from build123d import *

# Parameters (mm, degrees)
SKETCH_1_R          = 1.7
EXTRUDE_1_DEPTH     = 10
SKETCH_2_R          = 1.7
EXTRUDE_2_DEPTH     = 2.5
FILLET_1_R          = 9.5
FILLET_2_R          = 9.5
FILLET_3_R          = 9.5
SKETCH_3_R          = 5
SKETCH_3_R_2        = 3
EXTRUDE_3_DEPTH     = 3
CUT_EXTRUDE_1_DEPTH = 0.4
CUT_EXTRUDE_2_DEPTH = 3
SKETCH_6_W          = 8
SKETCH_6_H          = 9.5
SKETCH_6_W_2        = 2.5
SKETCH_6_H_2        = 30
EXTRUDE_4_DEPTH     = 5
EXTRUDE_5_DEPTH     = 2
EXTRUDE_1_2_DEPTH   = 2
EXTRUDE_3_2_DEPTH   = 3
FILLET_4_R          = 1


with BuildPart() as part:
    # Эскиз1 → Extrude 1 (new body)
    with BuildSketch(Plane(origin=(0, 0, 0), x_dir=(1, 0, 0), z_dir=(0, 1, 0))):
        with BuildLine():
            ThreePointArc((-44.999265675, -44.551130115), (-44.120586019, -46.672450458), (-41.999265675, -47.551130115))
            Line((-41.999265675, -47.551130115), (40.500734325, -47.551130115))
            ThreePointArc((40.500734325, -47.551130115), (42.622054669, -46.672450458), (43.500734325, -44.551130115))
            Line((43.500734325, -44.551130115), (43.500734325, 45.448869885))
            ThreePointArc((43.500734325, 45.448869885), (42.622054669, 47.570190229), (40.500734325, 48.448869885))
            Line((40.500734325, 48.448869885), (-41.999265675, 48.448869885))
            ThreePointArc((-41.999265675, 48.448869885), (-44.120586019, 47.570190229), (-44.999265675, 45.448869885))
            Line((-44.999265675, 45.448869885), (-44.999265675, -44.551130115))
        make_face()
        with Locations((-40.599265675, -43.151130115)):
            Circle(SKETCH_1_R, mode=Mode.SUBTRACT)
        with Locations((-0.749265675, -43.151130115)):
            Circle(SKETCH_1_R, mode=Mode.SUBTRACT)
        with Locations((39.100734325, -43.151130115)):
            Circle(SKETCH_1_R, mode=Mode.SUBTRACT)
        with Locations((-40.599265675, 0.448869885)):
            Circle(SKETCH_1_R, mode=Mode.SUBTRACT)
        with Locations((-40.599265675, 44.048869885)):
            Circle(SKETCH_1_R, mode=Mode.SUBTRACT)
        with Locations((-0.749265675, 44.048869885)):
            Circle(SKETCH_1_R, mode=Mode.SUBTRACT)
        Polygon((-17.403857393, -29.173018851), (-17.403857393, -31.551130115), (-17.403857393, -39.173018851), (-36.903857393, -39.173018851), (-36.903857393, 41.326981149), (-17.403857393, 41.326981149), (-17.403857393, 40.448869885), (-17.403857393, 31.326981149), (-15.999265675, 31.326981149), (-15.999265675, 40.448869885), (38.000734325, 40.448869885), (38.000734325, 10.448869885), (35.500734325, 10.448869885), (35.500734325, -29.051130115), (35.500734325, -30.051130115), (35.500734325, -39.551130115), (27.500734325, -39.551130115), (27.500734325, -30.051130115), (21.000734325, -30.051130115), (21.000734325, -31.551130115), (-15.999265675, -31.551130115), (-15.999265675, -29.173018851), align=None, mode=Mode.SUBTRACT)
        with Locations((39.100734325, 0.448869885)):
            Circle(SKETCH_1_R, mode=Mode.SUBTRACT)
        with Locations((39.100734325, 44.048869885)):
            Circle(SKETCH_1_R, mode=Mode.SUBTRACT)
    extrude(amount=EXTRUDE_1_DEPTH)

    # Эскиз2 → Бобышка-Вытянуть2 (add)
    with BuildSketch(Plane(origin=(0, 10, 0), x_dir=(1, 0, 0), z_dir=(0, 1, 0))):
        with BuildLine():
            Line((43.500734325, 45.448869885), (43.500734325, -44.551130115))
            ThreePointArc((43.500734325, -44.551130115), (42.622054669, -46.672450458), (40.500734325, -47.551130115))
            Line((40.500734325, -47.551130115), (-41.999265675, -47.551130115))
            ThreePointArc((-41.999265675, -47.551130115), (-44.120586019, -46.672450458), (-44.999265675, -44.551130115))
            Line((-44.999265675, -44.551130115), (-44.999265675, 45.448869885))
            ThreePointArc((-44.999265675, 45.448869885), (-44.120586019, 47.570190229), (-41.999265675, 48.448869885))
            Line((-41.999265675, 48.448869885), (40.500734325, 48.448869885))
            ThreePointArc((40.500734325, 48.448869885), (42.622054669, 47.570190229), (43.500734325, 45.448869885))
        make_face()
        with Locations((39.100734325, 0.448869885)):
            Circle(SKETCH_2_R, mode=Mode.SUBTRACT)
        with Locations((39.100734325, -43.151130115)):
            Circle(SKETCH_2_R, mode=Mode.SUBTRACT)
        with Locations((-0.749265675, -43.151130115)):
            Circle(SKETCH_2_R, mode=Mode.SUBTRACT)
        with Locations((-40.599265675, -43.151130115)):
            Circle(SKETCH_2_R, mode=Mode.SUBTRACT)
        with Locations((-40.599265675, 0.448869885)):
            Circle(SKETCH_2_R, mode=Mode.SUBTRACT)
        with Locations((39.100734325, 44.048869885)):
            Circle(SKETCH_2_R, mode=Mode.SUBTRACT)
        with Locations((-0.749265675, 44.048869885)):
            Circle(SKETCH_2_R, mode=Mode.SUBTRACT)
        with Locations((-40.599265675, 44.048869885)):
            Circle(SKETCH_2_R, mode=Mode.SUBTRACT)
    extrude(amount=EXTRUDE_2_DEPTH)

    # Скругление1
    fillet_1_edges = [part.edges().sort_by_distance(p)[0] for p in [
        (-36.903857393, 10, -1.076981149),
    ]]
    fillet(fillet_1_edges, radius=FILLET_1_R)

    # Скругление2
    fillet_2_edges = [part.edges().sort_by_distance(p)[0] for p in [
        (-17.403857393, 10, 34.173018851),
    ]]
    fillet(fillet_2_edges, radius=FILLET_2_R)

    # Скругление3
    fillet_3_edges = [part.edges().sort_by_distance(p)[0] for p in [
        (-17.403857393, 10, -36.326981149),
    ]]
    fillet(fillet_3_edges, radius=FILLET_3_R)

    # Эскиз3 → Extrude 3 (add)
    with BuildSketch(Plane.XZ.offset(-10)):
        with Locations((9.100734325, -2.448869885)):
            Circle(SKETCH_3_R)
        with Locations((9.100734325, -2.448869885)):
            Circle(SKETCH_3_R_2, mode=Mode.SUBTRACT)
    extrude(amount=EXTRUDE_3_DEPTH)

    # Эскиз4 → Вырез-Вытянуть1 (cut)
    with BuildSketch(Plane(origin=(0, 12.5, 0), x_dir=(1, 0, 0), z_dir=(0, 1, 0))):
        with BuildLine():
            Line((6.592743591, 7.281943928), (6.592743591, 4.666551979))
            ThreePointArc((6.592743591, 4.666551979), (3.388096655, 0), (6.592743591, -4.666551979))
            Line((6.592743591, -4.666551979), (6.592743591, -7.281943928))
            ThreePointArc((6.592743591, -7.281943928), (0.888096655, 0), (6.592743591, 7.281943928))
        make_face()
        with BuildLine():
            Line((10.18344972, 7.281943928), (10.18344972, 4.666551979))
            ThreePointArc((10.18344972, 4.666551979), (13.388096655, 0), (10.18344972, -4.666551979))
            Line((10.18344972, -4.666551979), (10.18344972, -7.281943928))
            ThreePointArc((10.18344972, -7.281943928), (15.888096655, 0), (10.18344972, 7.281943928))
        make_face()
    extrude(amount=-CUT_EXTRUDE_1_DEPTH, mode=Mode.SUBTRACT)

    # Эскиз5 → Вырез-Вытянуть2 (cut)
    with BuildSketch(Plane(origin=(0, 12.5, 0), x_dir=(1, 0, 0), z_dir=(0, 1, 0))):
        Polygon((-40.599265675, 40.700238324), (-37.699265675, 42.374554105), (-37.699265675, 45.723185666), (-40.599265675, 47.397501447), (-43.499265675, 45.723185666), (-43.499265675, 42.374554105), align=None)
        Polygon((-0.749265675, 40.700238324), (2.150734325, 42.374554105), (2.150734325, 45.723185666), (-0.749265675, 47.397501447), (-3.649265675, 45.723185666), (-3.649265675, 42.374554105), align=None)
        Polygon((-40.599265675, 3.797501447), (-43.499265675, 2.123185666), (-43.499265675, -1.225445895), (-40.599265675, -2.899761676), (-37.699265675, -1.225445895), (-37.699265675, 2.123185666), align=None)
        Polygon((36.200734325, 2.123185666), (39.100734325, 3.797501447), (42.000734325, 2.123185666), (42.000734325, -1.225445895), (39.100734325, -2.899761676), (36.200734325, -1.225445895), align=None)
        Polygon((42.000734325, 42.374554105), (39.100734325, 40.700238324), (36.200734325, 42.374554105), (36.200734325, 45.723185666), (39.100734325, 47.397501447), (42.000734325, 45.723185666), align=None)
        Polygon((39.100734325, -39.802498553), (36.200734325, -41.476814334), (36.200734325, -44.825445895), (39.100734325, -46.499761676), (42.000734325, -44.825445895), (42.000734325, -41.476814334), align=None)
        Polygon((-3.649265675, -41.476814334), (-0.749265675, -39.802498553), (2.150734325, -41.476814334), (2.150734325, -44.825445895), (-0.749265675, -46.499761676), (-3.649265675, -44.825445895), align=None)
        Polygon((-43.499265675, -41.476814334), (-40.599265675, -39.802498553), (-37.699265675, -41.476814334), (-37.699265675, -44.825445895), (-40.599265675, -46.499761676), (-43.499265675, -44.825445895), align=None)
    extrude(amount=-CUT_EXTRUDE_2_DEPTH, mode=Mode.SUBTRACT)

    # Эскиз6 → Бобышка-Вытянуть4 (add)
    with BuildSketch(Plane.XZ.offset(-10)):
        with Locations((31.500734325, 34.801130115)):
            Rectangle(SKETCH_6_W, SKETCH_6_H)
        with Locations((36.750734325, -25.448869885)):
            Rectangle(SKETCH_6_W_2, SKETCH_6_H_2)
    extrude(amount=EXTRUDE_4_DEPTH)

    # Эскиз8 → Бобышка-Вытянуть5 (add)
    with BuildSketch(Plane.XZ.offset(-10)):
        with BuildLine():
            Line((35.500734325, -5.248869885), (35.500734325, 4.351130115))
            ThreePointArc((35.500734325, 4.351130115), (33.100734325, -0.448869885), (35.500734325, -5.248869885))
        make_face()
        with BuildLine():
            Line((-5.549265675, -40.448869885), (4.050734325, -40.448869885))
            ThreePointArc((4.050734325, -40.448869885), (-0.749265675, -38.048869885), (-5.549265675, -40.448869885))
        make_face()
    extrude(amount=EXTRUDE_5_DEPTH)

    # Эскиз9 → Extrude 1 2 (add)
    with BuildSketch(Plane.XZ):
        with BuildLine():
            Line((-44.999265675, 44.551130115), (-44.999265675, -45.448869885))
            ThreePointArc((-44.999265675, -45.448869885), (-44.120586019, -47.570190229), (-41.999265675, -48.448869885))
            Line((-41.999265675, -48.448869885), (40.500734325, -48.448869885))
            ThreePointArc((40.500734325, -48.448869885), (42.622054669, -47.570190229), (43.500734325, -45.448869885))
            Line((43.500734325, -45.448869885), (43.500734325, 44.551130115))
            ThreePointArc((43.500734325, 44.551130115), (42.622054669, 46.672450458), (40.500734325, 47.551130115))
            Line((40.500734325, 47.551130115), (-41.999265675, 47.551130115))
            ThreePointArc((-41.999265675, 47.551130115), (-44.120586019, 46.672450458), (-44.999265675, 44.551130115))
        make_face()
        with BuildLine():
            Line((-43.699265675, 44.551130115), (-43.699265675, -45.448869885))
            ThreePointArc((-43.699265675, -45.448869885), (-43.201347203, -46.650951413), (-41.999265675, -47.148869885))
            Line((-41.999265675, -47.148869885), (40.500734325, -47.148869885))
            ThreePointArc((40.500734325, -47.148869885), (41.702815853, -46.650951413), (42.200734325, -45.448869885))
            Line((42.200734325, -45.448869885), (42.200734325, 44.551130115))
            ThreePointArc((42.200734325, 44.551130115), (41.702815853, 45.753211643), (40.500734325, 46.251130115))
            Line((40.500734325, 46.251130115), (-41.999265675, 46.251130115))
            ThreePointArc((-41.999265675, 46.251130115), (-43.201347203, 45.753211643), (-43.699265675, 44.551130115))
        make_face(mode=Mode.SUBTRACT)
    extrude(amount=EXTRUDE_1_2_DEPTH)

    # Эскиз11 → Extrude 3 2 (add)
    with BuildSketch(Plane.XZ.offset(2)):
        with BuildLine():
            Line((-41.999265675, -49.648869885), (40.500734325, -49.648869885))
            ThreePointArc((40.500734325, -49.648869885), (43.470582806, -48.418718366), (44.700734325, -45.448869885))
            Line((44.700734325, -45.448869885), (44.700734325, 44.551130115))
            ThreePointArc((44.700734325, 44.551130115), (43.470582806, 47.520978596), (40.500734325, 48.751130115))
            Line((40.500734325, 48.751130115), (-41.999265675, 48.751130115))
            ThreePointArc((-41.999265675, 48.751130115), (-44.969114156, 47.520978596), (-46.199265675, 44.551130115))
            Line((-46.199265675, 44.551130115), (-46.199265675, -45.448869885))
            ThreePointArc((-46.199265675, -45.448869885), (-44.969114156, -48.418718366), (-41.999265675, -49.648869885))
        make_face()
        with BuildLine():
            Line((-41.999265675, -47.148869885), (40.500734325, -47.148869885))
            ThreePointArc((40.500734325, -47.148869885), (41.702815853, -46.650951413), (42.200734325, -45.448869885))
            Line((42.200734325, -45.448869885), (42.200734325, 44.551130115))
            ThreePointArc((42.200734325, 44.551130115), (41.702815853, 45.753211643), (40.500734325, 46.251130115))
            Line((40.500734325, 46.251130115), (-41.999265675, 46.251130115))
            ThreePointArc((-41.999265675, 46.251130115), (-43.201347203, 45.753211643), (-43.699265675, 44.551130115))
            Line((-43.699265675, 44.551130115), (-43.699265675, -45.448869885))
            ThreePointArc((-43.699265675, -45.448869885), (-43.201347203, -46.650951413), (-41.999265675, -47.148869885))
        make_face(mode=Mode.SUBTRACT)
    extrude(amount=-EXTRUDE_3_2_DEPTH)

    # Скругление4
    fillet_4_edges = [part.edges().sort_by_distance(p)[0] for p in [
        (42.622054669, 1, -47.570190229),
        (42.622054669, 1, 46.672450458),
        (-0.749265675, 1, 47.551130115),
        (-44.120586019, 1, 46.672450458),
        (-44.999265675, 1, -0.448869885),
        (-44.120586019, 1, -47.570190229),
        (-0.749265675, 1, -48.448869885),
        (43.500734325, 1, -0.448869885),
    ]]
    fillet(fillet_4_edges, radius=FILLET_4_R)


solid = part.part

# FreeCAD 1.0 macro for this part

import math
import FreeCAD as App
import Part
import Sketcher
Q = App.Units.Quantity


def edges_at(feature, points):
    """Names of the edges that pass closest to the given points."""
    edges = feature.Shape.Edges
    near = lambda p: min(range(len(edges)), key=lambda i: edges[i].distToShape(Part.Vertex(*p))[0])
    return sorted({f"Edge{near(p) + 1}" for p in points})


def add_polygon(sketch, points):
    """Adds a closed chain of lines whose ends are joined by coincident constraints."""
    first, n = sketch.GeometryCount, len(points)
    for a, b in zip(points, points[1:] + points[:1]):
        sketch.addGeometry(Part.LineSegment(App.Vector(*a, 0), App.Vector(*b, 0)), False)
    for i in range(n):
        sketch.addConstraint(Sketcher.Constraint("Coincident", first + i, 2, first + (i + 1) % n, 1))

doc = App.newDocument("Part")
body = doc.addObject("PartDesign::Body", "Body")

# Sketch on XZ plane
sketch1 = body.newObject("Sketcher::SketchObject", "Sketch")
sketch1.AttachmentSupport = (doc.getObject("XZ_Plane"), [""])
sketch1.MapMode = "FlatFace"
sketch1.addGeometry(Part.ArcOfCircle(Part.Circle(App.Vector(-42, 44.6, 0), App.Vector(0, 0, 1), 3), math.radians(90), math.radians(180)), False)  # 0
sketch1.addGeometry(Part.LineSegment(App.Vector(-42, 47.6, 0), App.Vector(40.5, 47.6, 0)), False)  # 1
sketch1.addGeometry(Part.ArcOfCircle(Part.Circle(App.Vector(40.5, 44.6, 0), App.Vector(0, 0, 1), 3), math.radians(0), math.radians(90)), False)  # 2
sketch1.addGeometry(Part.LineSegment(App.Vector(43.5, 44.6, 0), App.Vector(43.5, -45.4, 0)), False)  # 3
sketch1.addGeometry(Part.ArcOfCircle(Part.Circle(App.Vector(40.5, -45.4, 0), App.Vector(0, 0, 1), 3), math.radians(-90), math.radians(0)), False)  # 4
sketch1.addGeometry(Part.LineSegment(App.Vector(40.5, -48.4, 0), App.Vector(-42, -48.4, 0)), False)  # 5
sketch1.addGeometry(Part.ArcOfCircle(Part.Circle(App.Vector(-42, -45.4, 0), App.Vector(0, 0, 1), 3), math.radians(180), math.radians(270)), False)  # 6
sketch1.addGeometry(Part.LineSegment(App.Vector(-45, -45.4, 0), App.Vector(-45, 44.6, 0)), False)  # 7
sketch1.addGeometry(Part.Circle(App.Vector(-40.6, 43.2, 0), App.Vector(0, 0, 1), 1.7), False)  # 8
sketch1.addGeometry(Part.Circle(App.Vector(-40.6, -0.4, 0), App.Vector(0, 0, 1), 1.7), False)  # 9
sketch1.addGeometry(Part.Circle(App.Vector(-0.7, 43.2, 0), App.Vector(0, 0, 1), 1.7), False)  # 10
sketch1.addGeometry(Part.Circle(App.Vector(39.1, 43.2, 0), App.Vector(0, 0, 1), 1.7), False)  # 11
sketch1.addGeometry(Part.Circle(App.Vector(39.1, -0.4, 0), App.Vector(0, 0, 1), 1.7), False)  # 12
sketch1.addGeometry(Part.Circle(App.Vector(-40.6, -44, 0), App.Vector(0, 0, 1), 1.7), False)  # 13
add_polygon(sketch1, [(-16, 29.2), (-17.4, 29.2), (-17.4, 39.2), (-36.9, 39.2), (-36.9, -41.3), (-17.4, -41.3), (-17.4, -31.3), (-16, -31.3), (-16, -40.4), (38, -40.4), (38, -10.4), (35.5, -10.4), (35.5, 39.6), (27.5, 39.6), (27.5, 30.1), (21, 30.1), (21, 31.6), (-16, 31.6)])  # lines 14-31
sketch1.addGeometry(Part.Circle(App.Vector(-0.7, -44, 0), App.Vector(0, 0, 1), 1.7), False)  # 32
sketch1.addGeometry(Part.Circle(App.Vector(39.1, -44, 0), App.Vector(0, 0, 1), 1.7), False)  # 33
sketch1.addConstraint([
    Sketcher.Constraint("Tangent", 0, 1, 1, 1),
    Sketcher.Constraint("Tangent", 1, 2, 2, 2),
    Sketcher.Constraint("Tangent", 2, 1, 3, 1),
    Sketcher.Constraint("Tangent", 3, 2, 4, 2),
    Sketcher.Constraint("Tangent", 4, 1, 5, 1),
    Sketcher.Constraint("Tangent", 5, 2, 6, 2),
    Sketcher.Constraint("Tangent", 6, 1, 7, 1),
    Sketcher.Constraint("Tangent", 7, 2, 0, 2),
    Sketcher.Constraint("Horizontal", 1),
    Sketcher.Constraint("Vertical", 3),
    Sketcher.Constraint("Horizontal", 5),
    Sketcher.Constraint("Vertical", 7),
    Sketcher.Constraint("Horizontal", 14),
    Sketcher.Constraint("Vertical", 15),
    Sketcher.Constraint("Horizontal", 16),
    Sketcher.Constraint("Vertical", 17),
    Sketcher.Constraint("Horizontal", 18),
    Sketcher.Constraint("Vertical", 19),
    Sketcher.Constraint("Horizontal", 20),
    Sketcher.Constraint("Vertical", 21),
    Sketcher.Constraint("Horizontal", 22),
    Sketcher.Constraint("Vertical", 23),
    Sketcher.Constraint("Horizontal", 24),
    Sketcher.Constraint("Vertical", 25),
    Sketcher.Constraint("Horizontal", 26),
    Sketcher.Constraint("Vertical", 27),
    Sketcher.Constraint("Horizontal", 28),
    Sketcher.Constraint("Vertical", 29),
    Sketcher.Constraint("Horizontal", 30),
    Sketcher.Constraint("Vertical", 31),
    Sketcher.Constraint("Equal", 0, 2),
    Sketcher.Constraint("Equal", 2, 4),
    Sketcher.Constraint("Equal", 4, 6),
    Sketcher.Constraint("Equal", 8, 9),
    Sketcher.Constraint("Equal", 9, 10),
    Sketcher.Constraint("Equal", 10, 11),
    Sketcher.Constraint("Equal", 11, 12),
    Sketcher.Constraint("Equal", 12, 13),
    Sketcher.Constraint("Equal", 13, 32),
    Sketcher.Constraint("Equal", 32, 33),
    Sketcher.Constraint("Horizontal", 8, 3, 10, 3),
    Sketcher.Constraint("Horizontal", 10, 3, 11, 3),
    Sketcher.Constraint("Horizontal", 9, 3, 12, 3),
    Sketcher.Constraint("Horizontal", 13, 3, 32, 3),
    Sketcher.Constraint("Horizontal", 32, 3, 33, 3),
    Sketcher.Constraint("Vertical", 8, 3, 9, 3),
    Sketcher.Constraint("Vertical", 11, 3, 12, 3),
    Sketcher.Constraint("Vertical", 9, 3, 13, 3),
    Sketcher.Constraint("Vertical", 10, 3, 32, 3),
    Sketcher.Constraint("Vertical", 12, 3, 33, 3),
    Sketcher.Constraint("Vertical", 15, 2, 18, 2),
    Sketcher.Constraint("Vertical", 21, 2, 30, 2),
    Sketcher.Constraint("Equal", 15, 19),
    Sketcher.Constraint("Radius", 0, 3.0),
    Sketcher.Constraint("Diameter", 8, 3.4),
    Sketcher.Constraint("DistanceX", 22, 1, 22, 2, 54.0),
    Sketcher.Constraint("DistanceX", 26, 2, 26, 1, 8.0),
    Sketcher.Constraint("DistanceX", 30, 2, 30, 1, 37.0),
    Sketcher.Constraint("DistanceY", 3, 2, 3, 1, 90.0),
    Sketcher.Constraint("DistanceY", 15, 1, 15, 2, 10.0),
    Sketcher.Constraint("DistanceY", 23, 1, 23, 2, 30.0),
    Sketcher.Constraint("DistanceY", 25, 1, 25, 2, 50.0),
    Sketcher.Constraint("DistanceX", 1, 1, 1, 2, 82.5),
    Sketcher.Constraint("DistanceX", 16, 2, 16, 1, 19.5),
    Sketcher.Constraint("DistanceX", 24, 2, 24, 1, 2.5),
    Sketcher.Constraint("DistanceY", 17, 2, 17, 1, 80.5),
    Sketcher.Constraint("DistanceY", 27, 2, 27, 1, 9.5),
    Sketcher.Constraint("DistanceY", 29, 1, 29, 2, 1.5),
    Sketcher.Constraint("DistanceY", 9, 3, 0, 3, 45.0),
    Sketcher.Constraint("DistanceY", 4, 3, 22, 2, 5.0),
    Sketcher.Constraint("DistanceX", 24, 2, 4, 3, 5.0),
    Sketcher.Constraint("DistanceX", 0, 3, 8, 3, 1.4),
    Sketcher.Constraint("DistanceY", 8, 3, 0, 3, 1.4),
    Sketcher.Constraint("DistanceX", 11, 3, 2, 3, 1.4),
    Sketcher.Constraint("DistanceY", 6, 3, 13, 3, 1.4),
    Sketcher.Constraint("DistanceX", 8, 3, 10, 3, 39.85),
    Sketcher.Constraint("DistanceX", 14, 2, 14, 1, 1.404592),
    Sketcher.Constraint("DistanceY", 21, 2, 21, 1, 9.121889),
    Sketcher.Constraint("DistanceY", -1, 1, 0, 3, 44.55113),
    Sketcher.Constraint("DistanceX", 0, 3, -1, 1, 41.999266),
])
pad1 = body.newObject("PartDesign::Pad", "Pad")
pad1.Profile = sketch1
pad1.Length = 10
pad1.Reversed = True

# Sketch on XZ plane
sketch2 = body.newObject("Sketcher::SketchObject", "Sketch001")
sketch2.AttachmentSupport = (doc.getObject("XZ_Plane"), [""])
sketch2.MapMode = "FlatFace"
sketch2.AttachmentOffset = App.Placement(App.Vector(0, 0, -10), App.Rotation())
sketch2.addGeometry([
    Part.LineSegment(App.Vector(43.5, 44.6, 0), App.Vector(43.5, -45.4, 0)),  # 0
    Part.ArcOfCircle(Part.Circle(App.Vector(40.5, -45.4, 0), App.Vector(0, 0, 1), 3), math.radians(-90), math.radians(0)),  # 1
    Part.LineSegment(App.Vector(40.5, -48.4, 0), App.Vector(-42, -48.4, 0)),  # 2
    Part.ArcOfCircle(Part.Circle(App.Vector(-42, -45.4, 0), App.Vector(0, 0, 1), 3), math.radians(180), math.radians(270)),  # 3
    Part.LineSegment(App.Vector(-45, -45.4, 0), App.Vector(-45, 44.6, 0)),  # 4
    Part.ArcOfCircle(Part.Circle(App.Vector(-42, 44.6, 0), App.Vector(0, 0, 1), 3), math.radians(90), math.radians(180)),  # 5
    Part.LineSegment(App.Vector(-42, 47.6, 0), App.Vector(40.5, 47.6, 0)),  # 6
    Part.ArcOfCircle(Part.Circle(App.Vector(40.5, 44.6, 0), App.Vector(0, 0, 1), 3), math.radians(0), math.radians(90)),  # 7
    Part.Circle(App.Vector(39.1, 43.2, 0), App.Vector(0, 0, 1), 1.7),  # 8
    Part.Circle(App.Vector(-0.7, 43.2, 0), App.Vector(0, 0, 1), 1.7),  # 9
    Part.Circle(App.Vector(-40.6, 43.2, 0), App.Vector(0, 0, 1), 1.7),  # 10
    Part.Circle(App.Vector(39.1, -0.4, 0), App.Vector(0, 0, 1), 1.7),  # 11
    Part.Circle(App.Vector(39.1, -44, 0), App.Vector(0, 0, 1), 1.7),  # 12
    Part.Circle(App.Vector(-40.6, -0.4, 0), App.Vector(0, 0, 1), 1.7),  # 13
    Part.Circle(App.Vector(-0.7, -44, 0), App.Vector(0, 0, 1), 1.7),  # 14
    Part.Circle(App.Vector(-40.6, -44, 0), App.Vector(0, 0, 1), 1.7),  # 15
], False)
sketch2.addConstraint([
    Sketcher.Constraint("Tangent", 0, 2, 1, 2),
    Sketcher.Constraint("Tangent", 1, 1, 2, 1),
    Sketcher.Constraint("Tangent", 2, 2, 3, 2),
    Sketcher.Constraint("Tangent", 3, 1, 4, 1),
    Sketcher.Constraint("Tangent", 4, 2, 5, 2),
    Sketcher.Constraint("Tangent", 5, 1, 6, 1),
    Sketcher.Constraint("Tangent", 6, 2, 7, 2),
    Sketcher.Constraint("Tangent", 7, 1, 0, 1),
    Sketcher.Constraint("Vertical", 0),
    Sketcher.Constraint("Horizontal", 2),
    Sketcher.Constraint("Vertical", 4),
    Sketcher.Constraint("Horizontal", 6),
    Sketcher.Constraint("Equal", 1, 3),
    Sketcher.Constraint("Equal", 3, 5),
    Sketcher.Constraint("Equal", 5, 7),
    Sketcher.Constraint("Equal", 8, 9),
    Sketcher.Constraint("Equal", 9, 10),
    Sketcher.Constraint("Equal", 10, 11),
    Sketcher.Constraint("Equal", 11, 12),
    Sketcher.Constraint("Equal", 12, 13),
    Sketcher.Constraint("Equal", 13, 14),
    Sketcher.Constraint("Equal", 14, 15),
    Sketcher.Constraint("Horizontal", 8, 3, 9, 3),
    Sketcher.Constraint("Horizontal", 9, 3, 10, 3),
    Sketcher.Constraint("Horizontal", 11, 3, 13, 3),
    Sketcher.Constraint("Horizontal", 12, 3, 14, 3),
    Sketcher.Constraint("Horizontal", 14, 3, 15, 3),
    Sketcher.Constraint("Vertical", 8, 3, 11, 3),
    Sketcher.Constraint("Vertical", 11, 3, 12, 3),
    Sketcher.Constraint("Vertical", 10, 3, 13, 3),
    Sketcher.Constraint("Vertical", 9, 3, 14, 3),
    Sketcher.Constraint("Vertical", 13, 3, 15, 3),
    Sketcher.Constraint("Radius", 1, 3.0),
    Sketcher.Constraint("Diameter", 8, 3.4),
    Sketcher.Constraint("DistanceY", 0, 2, 0, 1, 90.0),
    Sketcher.Constraint("DistanceX", 2, 2, 2, 1, 82.5),
    Sketcher.Constraint("DistanceY", 11, 3, 7, 3, 45.0),
    Sketcher.Constraint("DistanceX", 8, 3, 7, 3, 1.4),
    Sketcher.Constraint("DistanceY", 8, 3, 7, 3, 1.4),
    Sketcher.Constraint("DistanceX", 5, 3, 10, 3, 1.4),
    Sketcher.Constraint("DistanceY", 1, 3, 12, 3, 1.4),
    Sketcher.Constraint("DistanceX", 9, 3, 8, 3, 39.85),
    Sketcher.Constraint("DistanceY", 1, 3, -1, 1, 45.44887),
    Sketcher.Constraint("DistanceX", -1, 1, 1, 3, 40.500734),
])
pad2 = body.newObject("PartDesign::Pad", "Pad001")
pad2.Profile = sketch2
pad2.Length = 2.5
pad2.Reversed = True
doc.recompute()

fillet = body.newObject("PartDesign::Fillet", "Fillet")
fillet.Base = (pad2, edges_at(pad2, [(-36.904, 10, -1.077)]))
fillet.Radius = 9.5
doc.recompute()

fillet2 = body.newObject("PartDesign::Fillet", "Fillet001")
fillet2.Base = (fillet, edges_at(fillet, [(-17.404, 10, 34.173)]))
fillet2.Radius = 9.5
doc.recompute()

fillet3 = body.newObject("PartDesign::Fillet", "Fillet002")
fillet3.Base = (fillet2, edges_at(fillet2, [(-17.404, 10, -36.327)]))
fillet3.Radius = 9.5

# Sketch on XZ plane
sketch3 = body.newObject("Sketcher::SketchObject", "Sketch002")
sketch3.AttachmentSupport = (doc.getObject("XZ_Plane"), [""])
sketch3.MapMode = "FlatFace"
sketch3.AttachmentOffset = App.Placement(App.Vector(0, 0, -10), App.Rotation())
sketch3.addGeometry([
    Part.Circle(App.Vector(9.1, -2.4, 0), App.Vector(0, 0, 1), 5),
    Part.Circle(App.Vector(9.1, -2.4, 0), App.Vector(0, 0, 1), 3),
], False)
sketch3.addConstraint([
    Sketcher.Constraint("Coincident", 1, 3, 0, 3),
    Sketcher.Constraint("Diameter", 0, 10.0),
    Sketcher.Constraint("Diameter", 1, 6.0),
    Sketcher.Constraint("DistanceY", 0, 3, -1, 1, 2.44887),
    Sketcher.Constraint("DistanceX", -1, 1, 0, 3, 9.100734),
])
pad3 = body.newObject("PartDesign::Pad", "Pad002")
pad3.Profile = sketch3
pad3.Length = 3

# Sketch on XZ plane
sketch4 = body.newObject("Sketcher::SketchObject", "Sketch003")
sketch4.AttachmentSupport = (doc.getObject("XZ_Plane"), [""])
sketch4.MapMode = "FlatFace"
sketch4.AttachmentOffset = App.Placement(App.Vector(0, 0, -12.5), App.Rotation())
sketch4.addGeometry([
    Part.LineSegment(App.Vector(6.6, -4.7, 0), App.Vector(6.6, -7.3, 0)),  # 0
    Part.ArcOfCircle(Part.Circle(App.Vector(8.4, 0, 0), App.Vector(0, 0, 1), 7.5), math.radians(104), math.radians(256)),  # 1
    Part.LineSegment(App.Vector(6.6, 7.3, 0), App.Vector(6.6, 4.7, 0)),  # 2
    Part.ArcOfCircle(Part.Circle(App.Vector(8.4, 0, 0), App.Vector(0, 0, 1), 5), math.radians(111), math.radians(249)),  # 3
    Part.LineSegment(App.Vector(10.2, -7.3, 0), App.Vector(10.2, -4.7, 0)),  # 4
    Part.ArcOfCircle(Part.Circle(App.Vector(8.4, 0, 0), App.Vector(0, 0, 1), 5), math.radians(-69), math.radians(69)),  # 5
    Part.LineSegment(App.Vector(10.2, 4.7, 0), App.Vector(10.2, 7.3, 0)),  # 6
    Part.ArcOfCircle(Part.Circle(App.Vector(8.4, 0, 0), App.Vector(0, 0, 1), 7.5), math.radians(-76), math.radians(76)),  # 7
], False)
sketch4.addConstraint([
    Sketcher.Constraint("Coincident", 0, 2, 1, 2),
    Sketcher.Constraint("Coincident", 1, 1, 2, 1),
    Sketcher.Constraint("Coincident", 2, 2, 3, 1),
    Sketcher.Constraint("Coincident", 3, 2, 0, 1),
    Sketcher.Constraint("Coincident", 4, 2, 5, 1),
    Sketcher.Constraint("Coincident", 5, 2, 6, 1),
    Sketcher.Constraint("Coincident", 6, 2, 7, 2),
    Sketcher.Constraint("Coincident", 7, 1, 4, 1),
    Sketcher.Constraint("Vertical", 0),
    Sketcher.Constraint("Vertical", 2),
    Sketcher.Constraint("Vertical", 4),
    Sketcher.Constraint("Vertical", 6),
    Sketcher.Constraint("Coincident", 3, 3, 1, 3),
    Sketcher.Constraint("Coincident", 5, 3, 1, 3),
    Sketcher.Constraint("Coincident", 7, 3, 1, 3),
    Sketcher.Constraint("Equal", 3, 5),
    Sketcher.Constraint("Equal", 1, 7),
    Sketcher.Constraint("Symmetric", 0, 2, 1, 1, -1),
    Sketcher.Constraint("Horizontal", 3, 2, 4, 2),
    Sketcher.Constraint("Horizontal", 2, 2, 5, 2),
    Sketcher.Constraint("Radius", 3, 5.0),
    Sketcher.Constraint("Radius", 1, 7.5),
    Sketcher.Constraint("DistanceY", 0, 2, 0, 1, 2.615392),
    Sketcher.Constraint("DistanceX", -1, 1, 4, 2, 10.18345),
])
pocket1 = body.newObject("PartDesign::Pocket", "Pocket")
pocket1.Profile = sketch4
pocket1.Length = 0.4
pocket1.Reversed = True

# Sketch on XZ plane
sketch5 = body.newObject("Sketcher::SketchObject", "Sketch004")
sketch5.AttachmentSupport = (doc.getObject("XZ_Plane"), [""])
sketch5.MapMode = "FlatFace"
sketch5.AttachmentOffset = App.Placement(App.Vector(0, 0, -12.5), App.Rotation())
add_polygon(sketch5, [(-40.6, -40.7), (-37.7, -42.4), (-37.7, -45.7), (-40.6, -47.4), (-43.5, -45.7), (-43.5, -42.4)])  # lines 0-5
add_polygon(sketch5, [(-0.7, -40.7), (2.2, -42.4), (2.2, -45.7), (-0.7, -47.4), (-3.6, -45.7), (-3.6, -42.4)])  # lines 6-11
add_polygon(sketch5, [(-40.6, -3.8), (-43.5, -2.1), (-43.5, 1.2), (-40.6, 2.9), (-37.7, 1.2), (-37.7, -2.1)])  # lines 12-17
add_polygon(sketch5, [(39.1, -3.8), (36.2, -2.1), (36.2, 1.2), (39.1, 2.9), (42, 1.2), (42, -2.1)])  # lines 18-23
add_polygon(sketch5, [(39.1, -40.7), (42, -42.4), (42, -45.7), (39.1, -47.4), (36.2, -45.7), (36.2, -42.4)])  # lines 24-29
add_polygon(sketch5, [(39.1, 39.8), (36.2, 41.5), (36.2, 44.8), (39.1, 46.5), (42, 44.8), (42, 41.5)])  # lines 30-35
add_polygon(sketch5, [(-0.7, 39.8), (-3.6, 41.5), (-3.6, 44.8), (-0.7, 46.5), (2.2, 44.8), (2.2, 41.5)])  # lines 36-41
add_polygon(sketch5, [(-40.6, 39.8), (-43.5, 41.5), (-43.5, 44.8), (-40.6, 46.5), (-37.7, 44.8), (-37.7, 41.5)])  # lines 42-47
sketch5.addConstraint([
    Sketcher.Constraint("Vertical", 1),
    Sketcher.Constraint("Vertical", 4),
    Sketcher.Constraint("Vertical", 7),
    Sketcher.Constraint("Vertical", 10),
    Sketcher.Constraint("Vertical", 13),
    Sketcher.Constraint("Vertical", 16),
    Sketcher.Constraint("Vertical", 19),
    Sketcher.Constraint("Vertical", 22),
    Sketcher.Constraint("Vertical", 25),
    Sketcher.Constraint("Vertical", 28),
    Sketcher.Constraint("Vertical", 31),
    Sketcher.Constraint("Vertical", 34),
    Sketcher.Constraint("Vertical", 37),
    Sketcher.Constraint("Vertical", 40),
    Sketcher.Constraint("Vertical", 43),
    Sketcher.Constraint("Vertical", 46),
    Sketcher.Constraint("Parallel", 0, 3),
    Sketcher.Constraint("Parallel", 2, 5),
    Sketcher.Constraint("Parallel", 3, 6),
    Sketcher.Constraint("Parallel", 5, 8),
    Sketcher.Constraint("Parallel", 6, 9),
    Sketcher.Constraint("Parallel", 8, 11),
    Sketcher.Constraint("Parallel", 9, 12),
    Sketcher.Constraint("Parallel", 11, 14),
    Sketcher.Constraint("Parallel", 12, 15),
    Sketcher.Constraint("Parallel", 14, 17),
    Sketcher.Constraint("Parallel", 15, 18),
    Sketcher.Constraint("Parallel", 17, 20),
    Sketcher.Constraint("Parallel", 18, 21),
    Sketcher.Constraint("Parallel", 20, 23),
    Sketcher.Constraint("Parallel", 21, 24),
    Sketcher.Constraint("Parallel", 23, 26),
    Sketcher.Constraint("Parallel", 24, 27),
    Sketcher.Constraint("Parallel", 26, 29),
    Sketcher.Constraint("Parallel", 27, 30),
    Sketcher.Constraint("Parallel", 29, 32),
    Sketcher.Constraint("Parallel", 30, 33),
    Sketcher.Constraint("Parallel", 32, 35),
    Sketcher.Constraint("Parallel", 33, 36),
    Sketcher.Constraint("Parallel", 35, 38),
    Sketcher.Constraint("Parallel", 36, 39),
    Sketcher.Constraint("Parallel", 38, 41),
    Sketcher.Constraint("Parallel", 39, 42),
    Sketcher.Constraint("Parallel", 41, 44),
    Sketcher.Constraint("Parallel", 42, 45),
    Sketcher.Constraint("Parallel", 44, 47),
    Sketcher.Constraint("Horizontal", 1, 2, 3, 2),
    Sketcher.Constraint("Horizontal", 0, 2, 4, 2),
    Sketcher.Constraint("Horizontal", 4, 2, 6, 2),
    Sketcher.Constraint("Horizontal", 3, 2, 7, 2),
    Sketcher.Constraint("Horizontal", 2, 2, 8, 2),
    Sketcher.Constraint("Horizontal", 7, 2, 9, 2),
    Sketcher.Constraint("Horizontal", 6, 2, 10, 2),
    Sketcher.Constraint("Horizontal", 13, 2, 15, 2),
    Sketcher.Constraint("Horizontal", 12, 2, 16, 2),
    Sketcher.Constraint("Horizontal", 16, 2, 18, 2),
    Sketcher.Constraint("Horizontal", 15, 2, 19, 2),
    Sketcher.Constraint("Horizontal", 14, 2, 20, 2),
    Sketcher.Constraint("Horizontal", 19, 2, 21, 2),
    Sketcher.Constraint("Horizontal", 18, 2, 22, 2),
    Sketcher.Constraint("Horizontal", 10, 2, 24, 2),
    Sketcher.Constraint("Horizontal", 9, 2, 25, 2),
    Sketcher.Constraint("Horizontal", 8, 2, 26, 2),
    Sketcher.Constraint("Horizontal", 25, 2, 27, 2),
    Sketcher.Constraint("Horizontal", 24, 2, 28, 2),
    Sketcher.Constraint("Horizontal", 31, 2, 33, 2),
    Sketcher.Constraint("Horizontal", 30, 2, 34, 2),
    Sketcher.Constraint("Horizontal", 34, 2, 36, 2),
    Sketcher.Constraint("Horizontal", 33, 2, 37, 2),
    Sketcher.Constraint("Horizontal", 32, 2, 38, 2),
    Sketcher.Constraint("Horizontal", 37, 2, 39, 2),
    Sketcher.Constraint("Horizontal", 36, 2, 40, 2),
    Sketcher.Constraint("Horizontal", 40, 2, 42, 2),
    Sketcher.Constraint("Horizontal", 39, 2, 43, 2),
    Sketcher.Constraint("Horizontal", 38, 2, 44, 2),
    Sketcher.Constraint("Horizontal", 43, 2, 45, 2),
    Sketcher.Constraint("Horizontal", 42, 2, 46, 2),
    Sketcher.Constraint("Vertical", 2, 2, 5, 2),
    Sketcher.Constraint("Vertical", 4, 2, 12, 2),
    Sketcher.Constraint("Vertical", 5, 2, 14, 2),
    Sketcher.Constraint("Vertical", 22, 2, 24, 2),
    Sketcher.Constraint("Vertical", 28, 2, 30, 2),
    Sketcher.Constraint("Vertical", 29, 2, 32, 2),
    Sketcher.Constraint("Vertical", 10, 2, 36, 2),
    Sketcher.Constraint("Vertical", 13, 2, 42, 2),
    Sketcher.Constraint("Equal", 10, 13),
    Sketcher.Constraint("Equal", 28, 31),
    Sketcher.Constraint("Angle", 0, Q("-30 deg")),
    Sketcher.Constraint("DistanceX", 2, 2, 1, 2, 2.9),
    Sketcher.Constraint("DistanceY", 3, 2, 12, 2, 43.6),
    Sketcher.Constraint("DistanceY", 18, 2, 30, 2, 43.6),
    Sketcher.Constraint("DistanceX", 0, 2, 6, 2, 39.85),
    Sketcher.Constraint("DistanceX", 6, 2, 18, 2, 34.05),
    Sketcher.Constraint("DistanceY", 1, 2, 1, 1, 3.348632),
    Sketcher.Constraint("DistanceY", 2, 2, -1, 1, 47.397501),
    Sketcher.Constraint("DistanceX", 0, 2, -1, 1, 37.699266),
])
pocket2 = body.newObject("PartDesign::Pocket", "Pocket001")
pocket2.Profile = sketch5
pocket2.Length = 3
pocket2.Reversed = True

# Sketch on XZ plane
sketch6 = body.newObject("Sketcher::SketchObject", "Sketch005")
sketch6.AttachmentSupport = (doc.getObject("XZ_Plane"), [""])
sketch6.MapMode = "FlatFace"
sketch6.AttachmentOffset = App.Placement(App.Vector(0, 0, -10), App.Rotation())
add_polygon(sketch6, [(27.5, 39.6), (27.5, 30.1), (35.5, 30.1), (35.5, 39.6)])  # lines 0-3
add_polygon(sketch6, [(35.5, -10.4), (35.5, -40.4), (38, -40.4), (38, -10.4)])  # lines 4-7
sketch6.addConstraint([
    Sketcher.Constraint("Vertical", 0),
    Sketcher.Constraint("Horizontal", 1),
    Sketcher.Constraint("Vertical", 2),
    Sketcher.Constraint("Horizontal", 3),
    Sketcher.Constraint("Vertical", 4),
    Sketcher.Constraint("Horizontal", 5),
    Sketcher.Constraint("Vertical", 6),
    Sketcher.Constraint("Horizontal", 7),
    Sketcher.Constraint("Vertical", 2, 2, 4, 2),
    Sketcher.Constraint("DistanceX", 1, 1, 1, 2, 8.0),
    Sketcher.Constraint("DistanceY", 4, 2, 4, 1, 30.0),
    Sketcher.Constraint("DistanceX", 5, 1, 5, 2, 2.5),
    Sketcher.Constraint("DistanceY", 0, 2, 0, 1, 9.5),
    Sketcher.Constraint("DistanceY", 4, 2, 2, 2, 80.0),
    Sketcher.Constraint("DistanceY", -1, 1, 0, 2, 30.05113),
    Sketcher.Constraint("DistanceX", -1, 1, 0, 2, 27.500734),
])
pad4 = body.newObject("PartDesign::Pad", "Pad003")
pad4.Profile = sketch6
pad4.Length = 5

# Sketch on XZ plane
sketch7 = body.newObject("Sketcher::SketchObject", "Sketch006")
sketch7.AttachmentSupport = (doc.getObject("XZ_Plane"), [""])
sketch7.MapMode = "FlatFace"
sketch7.AttachmentOffset = App.Placement(App.Vector(0, 0, -10), App.Rotation())
sketch7.addGeometry([
    Part.LineSegment(App.Vector(36, -5, 0), App.Vector(36, 4, 0)),
    Part.ArcOfCircle(Part.Circle(App.Vector(39, 0, 0), App.Vector(0, 0, 1), 6), math.radians(127), math.radians(233)),
    Part.LineSegment(App.Vector(-6, -40, 0), App.Vector(4, -40, 0)),
    Part.ArcOfCircle(Part.Circle(App.Vector(-1, -44, 0), App.Vector(0, 0, 1), 6), math.radians(37), math.radians(143)),
], False)
sketch7.addConstraint([
    Sketcher.Constraint("Coincident", 0, 1, 1, 2),
    Sketcher.Constraint("Coincident", 1, 1, 0, 2),
    Sketcher.Constraint("Coincident", 2, 1, 3, 2),
    Sketcher.Constraint("Coincident", 3, 1, 2, 2),
    Sketcher.Constraint("Vertical", 0),
    Sketcher.Constraint("Horizontal", 2),
    Sketcher.Constraint("Equal", 1, 3),
    Sketcher.Constraint("Equal", 2, 0),
    Sketcher.Constraint("Radius", 1, 6.0),
    Sketcher.Constraint("DistanceX", 2, 1, 2, 2, 9.6),
    Sketcher.Constraint("DistanceY", 2, 1, 1, 3, 40.0),
    Sketcher.Constraint("DistanceX", 3, 3, 1, 3, 39.85),
    Sketcher.Constraint("DistanceY", 1, 3, -1, 1, 0.44887),
    Sketcher.Constraint("DistanceX", -1, 1, 1, 3, 39.100734),
])
pad5 = body.newObject("PartDesign::Pad", "Pad004")
pad5.Profile = sketch7
pad5.Length = 2

# Sketch on XZ plane
sketch8 = body.newObject("Sketcher::SketchObject", "Sketch007")
sketch8.AttachmentSupport = (doc.getObject("XZ_Plane"), [""])
sketch8.MapMode = "FlatFace"
sketch8.addGeometry([
    Part.LineSegment(App.Vector(-45, 44.6, 0), App.Vector(-45, -45.4, 0)),  # 0
    Part.ArcOfCircle(Part.Circle(App.Vector(-42, -45.4, 0), App.Vector(0, 0, 1), 3), math.radians(180), math.radians(270)),  # 1
    Part.LineSegment(App.Vector(-42, -48.4, 0), App.Vector(40.5, -48.4, 0)),  # 2
    Part.ArcOfCircle(Part.Circle(App.Vector(40.5, -45.4, 0), App.Vector(0, 0, 1), 3), math.radians(-90), math.radians(0)),  # 3
    Part.LineSegment(App.Vector(43.5, -45.4, 0), App.Vector(43.5, 44.6, 0)),  # 4
    Part.ArcOfCircle(Part.Circle(App.Vector(40.5, 44.6, 0), App.Vector(0, 0, 1), 3), math.radians(0), math.radians(90)),  # 5
    Part.LineSegment(App.Vector(40.5, 47.6, 0), App.Vector(-42, 47.6, 0)),  # 6
    Part.ArcOfCircle(Part.Circle(App.Vector(-42, 44.6, 0), App.Vector(0, 0, 1), 3), math.radians(90), math.radians(180)),  # 7
    Part.LineSegment(App.Vector(-43.7, -45.4, 0), App.Vector(-43.7, 44.6, 0)),  # 8
    Part.ArcOfCircle(Part.Circle(App.Vector(-42, 44.6, 0), App.Vector(0, 0, 1), 1.7), math.radians(90), math.radians(180)),  # 9
    Part.LineSegment(App.Vector(-42, 46.3, 0), App.Vector(40.5, 46.3, 0)),  # 10
    Part.ArcOfCircle(Part.Circle(App.Vector(40.5, 44.6, 0), App.Vector(0, 0, 1), 1.7), math.radians(0), math.radians(90)),  # 11
    Part.LineSegment(App.Vector(42.2, 44.6, 0), App.Vector(42.2, -45.4, 0)),  # 12
    Part.ArcOfCircle(Part.Circle(App.Vector(40.5, -45.4, 0), App.Vector(0, 0, 1), 1.7), math.radians(-90), math.radians(0)),  # 13
    Part.LineSegment(App.Vector(40.5, -47.1, 0), App.Vector(-42, -47.1, 0)),  # 14
    Part.ArcOfCircle(Part.Circle(App.Vector(-42, -45.4, 0), App.Vector(0, 0, 1), 1.7), math.radians(180), math.radians(270)),  # 15
], False)
sketch8.addConstraint([
    Sketcher.Constraint("Tangent", 0, 2, 1, 1),
    Sketcher.Constraint("Tangent", 1, 2, 2, 1),
    Sketcher.Constraint("Tangent", 2, 2, 3, 1),
    Sketcher.Constraint("Tangent", 3, 2, 4, 1),
    Sketcher.Constraint("Tangent", 4, 2, 5, 1),
    Sketcher.Constraint("Tangent", 5, 2, 6, 1),
    Sketcher.Constraint("Tangent", 6, 2, 7, 1),
    Sketcher.Constraint("Tangent", 7, 2, 0, 1),
    Sketcher.Constraint("Tangent", 8, 2, 9, 2),
    Sketcher.Constraint("Tangent", 9, 1, 10, 1),
    Sketcher.Constraint("Tangent", 10, 2, 11, 2),
    Sketcher.Constraint("Tangent", 11, 1, 12, 1),
    Sketcher.Constraint("Tangent", 12, 2, 13, 2),
    Sketcher.Constraint("Tangent", 13, 1, 14, 1),
    Sketcher.Constraint("Tangent", 14, 2, 15, 2),
    Sketcher.Constraint("Tangent", 15, 1, 8, 1),
    Sketcher.Constraint("Vertical", 0),
    Sketcher.Constraint("Horizontal", 2),
    Sketcher.Constraint("Vertical", 4),
    Sketcher.Constraint("Horizontal", 6),
    Sketcher.Constraint("Vertical", 8),
    Sketcher.Constraint("Horizontal", 10),
    Sketcher.Constraint("Vertical", 12),
    Sketcher.Constraint("Horizontal", 14),
    Sketcher.Constraint("Coincident", 9, 3, 7, 3),
    Sketcher.Constraint("Coincident", 11, 3, 5, 3),
    Sketcher.Constraint("Coincident", 13, 3, 3, 3),
    Sketcher.Constraint("Equal", 1, 3),
    Sketcher.Constraint("Equal", 3, 5),
    Sketcher.Constraint("Equal", 5, 7),
    Sketcher.Constraint("Equal", 13, 15),
    Sketcher.Constraint("Radius", 1, 3.0),
    Sketcher.Constraint("Radius", 9, 1.7),
    Sketcher.Constraint("DistanceY", 0, 2, 0, 1, 90.0),
    Sketcher.Constraint("DistanceX", 2, 1, 2, 2, 82.5),
    Sketcher.Constraint("DistanceY", 1, 3, -1, 1, 45.44887),
    Sketcher.Constraint("DistanceX", 1, 3, -1, 1, 41.999266),
])
pad6 = body.newObject("PartDesign::Pad", "Pad005")
pad6.Profile = sketch8
pad6.Length = 2

# Sketch on XZ plane
sketch9 = body.newObject("Sketcher::SketchObject", "Sketch008")
sketch9.AttachmentSupport = (doc.getObject("XZ_Plane"), [""])
sketch9.MapMode = "FlatFace"
sketch9.AttachmentOffset = App.Placement(App.Vector(0, 0, 2), App.Rotation())
sketch9.addGeometry([
    Part.LineSegment(App.Vector(-42, -49.6, 0), App.Vector(40.5, -49.6, 0)),  # 0
    Part.ArcOfCircle(Part.Circle(App.Vector(40.5, -45.4, 0), App.Vector(0, 0, 1), 4.2), math.radians(-90), math.radians(0)),  # 1
    Part.LineSegment(App.Vector(44.7, -45.4, 0), App.Vector(44.7, 44.6, 0)),  # 2
    Part.ArcOfCircle(Part.Circle(App.Vector(40.5, 44.6, 0), App.Vector(0, 0, 1), 4.2), math.radians(0), math.radians(90)),  # 3
    Part.LineSegment(App.Vector(40.5, 48.8, 0), App.Vector(-42, 48.8, 0)),  # 4
    Part.ArcOfCircle(Part.Circle(App.Vector(-42, 44.6, 0), App.Vector(0, 0, 1), 4.2), math.radians(90), math.radians(180)),  # 5
    Part.LineSegment(App.Vector(-46.2, 44.6, 0), App.Vector(-46.2, -45.4, 0)),  # 6
    Part.ArcOfCircle(Part.Circle(App.Vector(-42, -45.4, 0), App.Vector(0, 0, 1), 4.2), math.radians(180), math.radians(270)),  # 7
    Part.LineSegment(App.Vector(40.5, -47.1, 0), App.Vector(-42, -47.1, 0)),  # 8
    Part.ArcOfCircle(Part.Circle(App.Vector(-42, -45.4, 0), App.Vector(0, 0, 1), 1.7), math.radians(180), math.radians(270)),  # 9
    Part.LineSegment(App.Vector(-43.7, -45.4, 0), App.Vector(-43.7, 44.6, 0)),  # 10
    Part.ArcOfCircle(Part.Circle(App.Vector(-42, 44.6, 0), App.Vector(0, 0, 1), 1.7), math.radians(90), math.radians(180)),  # 11
    Part.LineSegment(App.Vector(-42, 46.3, 0), App.Vector(40.5, 46.3, 0)),  # 12
    Part.ArcOfCircle(Part.Circle(App.Vector(40.5, 44.6, 0), App.Vector(0, 0, 1), 1.7), math.radians(0), math.radians(90)),  # 13
    Part.LineSegment(App.Vector(42.2, 44.6, 0), App.Vector(42.2, -45.4, 0)),  # 14
    Part.ArcOfCircle(Part.Circle(App.Vector(40.5, -45.4, 0), App.Vector(0, 0, 1), 1.7), math.radians(-90), math.radians(0)),  # 15
], False)
sketch9.addConstraint([
    Sketcher.Constraint("Tangent", 0, 2, 1, 1),
    Sketcher.Constraint("Tangent", 1, 2, 2, 1),
    Sketcher.Constraint("Tangent", 2, 2, 3, 1),
    Sketcher.Constraint("Tangent", 3, 2, 4, 1),
    Sketcher.Constraint("Tangent", 4, 2, 5, 1),
    Sketcher.Constraint("Tangent", 5, 2, 6, 1),
    Sketcher.Constraint("Tangent", 6, 2, 7, 1),
    Sketcher.Constraint("Tangent", 7, 2, 0, 1),
    Sketcher.Constraint("Tangent", 8, 2, 9, 2),
    Sketcher.Constraint("Tangent", 9, 1, 10, 1),
    Sketcher.Constraint("Tangent", 10, 2, 11, 2),
    Sketcher.Constraint("Tangent", 11, 1, 12, 1),
    Sketcher.Constraint("Tangent", 12, 2, 13, 2),
    Sketcher.Constraint("Tangent", 13, 1, 14, 1),
    Sketcher.Constraint("Tangent", 14, 2, 15, 2),
    Sketcher.Constraint("Tangent", 15, 1, 8, 1),
    Sketcher.Constraint("Horizontal", 0),
    Sketcher.Constraint("Vertical", 2),
    Sketcher.Constraint("Horizontal", 4),
    Sketcher.Constraint("Vertical", 6),
    Sketcher.Constraint("Horizontal", 8),
    Sketcher.Constraint("Vertical", 10),
    Sketcher.Constraint("Horizontal", 12),
    Sketcher.Constraint("Vertical", 14),
    Sketcher.Constraint("Coincident", 9, 3, 7, 3),
    Sketcher.Constraint("Coincident", 11, 3, 5, 3),
    Sketcher.Constraint("Coincident", 13, 3, 3, 3),
    Sketcher.Constraint("Equal", 1, 3),
    Sketcher.Constraint("Equal", 3, 5),
    Sketcher.Constraint("Equal", 5, 7),
    Sketcher.Constraint("Equal", 13, 15),
    Sketcher.Constraint("Radius", 1, 4.2),
    Sketcher.Constraint("Radius", 9, 1.7),
    Sketcher.Constraint("DistanceY", 2, 1, 2, 2, 90.0),
    Sketcher.Constraint("DistanceX", 0, 1, 0, 2, 82.5),
    Sketcher.Constraint("DistanceY", 1, 3, -1, 1, 45.44887),
    Sketcher.Constraint("DistanceX", -1, 1, 1, 3, 40.500734),
])
pad7 = body.newObject("PartDesign::Pad", "Pad006")
pad7.Profile = sketch9
pad7.Length = 3
pad7.Reversed = True
doc.recompute()

fillet4 = body.newObject("PartDesign::Fillet", "Fillet003")
fillet4.Base = (pad7, edges_at(pad7, [
    (42.622, 1, -47.57),
    (42.622, 1, 46.672),
    (-0.749, 1, 47.551),
    (-44.121, 1, 46.672),
    (-44.999, 1, -0.449),
    (-44.121, 1, -47.57),
    (-0.749, 1, -48.449),
    (43.501, 1, -0.449),
]))
fillet4.Radius = 1

doc.recompute()
